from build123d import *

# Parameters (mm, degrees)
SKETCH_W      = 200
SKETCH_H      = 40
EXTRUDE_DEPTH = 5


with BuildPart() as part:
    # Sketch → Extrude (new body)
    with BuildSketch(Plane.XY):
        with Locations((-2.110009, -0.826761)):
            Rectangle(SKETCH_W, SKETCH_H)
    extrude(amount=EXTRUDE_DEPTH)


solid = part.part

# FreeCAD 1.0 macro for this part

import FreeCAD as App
import Part
import Sketcher

V = App.Vector
Q = App.Units.Quantity

doc = App.newDocument("Part")
params = doc.addObject("Spreadsheet::Sheet", "Params")
for row, (alias, value) in enumerate([
    ("sketch1_width", "200 mm"),
    ("sketch1_height", "40 mm"),
    ("pad1_length", "5 mm"),
], start=1):
    params.set(f"A{row}", alias)
    params.set(f"B{row}", "=" + value)
    params.setAlias(f"B{row}", alias)

body = doc.addObject("PartDesign::Body", "Body")

sketch1 = body.newObject("Sketcher::SketchObject", "Sketch")
sketch1.AttachmentSupport = (doc.getObject("XY_Plane"), [""])
sketch1.MapMode = "FlatFace"
sketch1.addGeometry([
    Part.LineSegment(V(-102, 19, 0), V(-102, -21, 0)),
    Part.LineSegment(V(-102, -21, 0), V(98, -21, 0)),
    Part.LineSegment(V(98, -21, 0), V(98, 19, 0)),
    Part.LineSegment(V(98, 19, 0), V(-102, 19, 0)),
], False)
sketch1.addConstraint([
    Sketcher.Constraint("Coincident", 0, 2, 1, 1),
    Sketcher.Constraint("Coincident", 1, 2, 2, 1),
    Sketcher.Constraint("Coincident", 2, 2, 3, 1),
    Sketcher.Constraint("Coincident", 3, 2, 0, 1),
    Sketcher.Constraint("Vertical", 0),
    Sketcher.Constraint("Horizontal", 1),
    Sketcher.Constraint("Vertical", 2),
    Sketcher.Constraint("Horizontal", 3),
    Sketcher.Constraint("DistanceX", 1, 1, 1, 2, Q("200 mm")),
    Sketcher.Constraint("DistanceY", 0, 2, 0, 1, Q("40 mm")),
    Sketcher.Constraint("DistanceX", 0, 2, -1, 1, Q("102.110009 mm")),
    Sketcher.Constraint("DistanceY", 0, 2, -1, 1, Q("20.826761 mm")),
])
sketch1.setExpression("Constraints[8]", "Params.sketch1_width")
sketch1.setExpression("Constraints[9]", "Params.sketch1_height")
pad1 = body.newObject("PartDesign::Pad", "Pad")
pad1.Profile = sketch1
pad1.setExpression("Length", "Params.pad1_length")

doc.recompute()
